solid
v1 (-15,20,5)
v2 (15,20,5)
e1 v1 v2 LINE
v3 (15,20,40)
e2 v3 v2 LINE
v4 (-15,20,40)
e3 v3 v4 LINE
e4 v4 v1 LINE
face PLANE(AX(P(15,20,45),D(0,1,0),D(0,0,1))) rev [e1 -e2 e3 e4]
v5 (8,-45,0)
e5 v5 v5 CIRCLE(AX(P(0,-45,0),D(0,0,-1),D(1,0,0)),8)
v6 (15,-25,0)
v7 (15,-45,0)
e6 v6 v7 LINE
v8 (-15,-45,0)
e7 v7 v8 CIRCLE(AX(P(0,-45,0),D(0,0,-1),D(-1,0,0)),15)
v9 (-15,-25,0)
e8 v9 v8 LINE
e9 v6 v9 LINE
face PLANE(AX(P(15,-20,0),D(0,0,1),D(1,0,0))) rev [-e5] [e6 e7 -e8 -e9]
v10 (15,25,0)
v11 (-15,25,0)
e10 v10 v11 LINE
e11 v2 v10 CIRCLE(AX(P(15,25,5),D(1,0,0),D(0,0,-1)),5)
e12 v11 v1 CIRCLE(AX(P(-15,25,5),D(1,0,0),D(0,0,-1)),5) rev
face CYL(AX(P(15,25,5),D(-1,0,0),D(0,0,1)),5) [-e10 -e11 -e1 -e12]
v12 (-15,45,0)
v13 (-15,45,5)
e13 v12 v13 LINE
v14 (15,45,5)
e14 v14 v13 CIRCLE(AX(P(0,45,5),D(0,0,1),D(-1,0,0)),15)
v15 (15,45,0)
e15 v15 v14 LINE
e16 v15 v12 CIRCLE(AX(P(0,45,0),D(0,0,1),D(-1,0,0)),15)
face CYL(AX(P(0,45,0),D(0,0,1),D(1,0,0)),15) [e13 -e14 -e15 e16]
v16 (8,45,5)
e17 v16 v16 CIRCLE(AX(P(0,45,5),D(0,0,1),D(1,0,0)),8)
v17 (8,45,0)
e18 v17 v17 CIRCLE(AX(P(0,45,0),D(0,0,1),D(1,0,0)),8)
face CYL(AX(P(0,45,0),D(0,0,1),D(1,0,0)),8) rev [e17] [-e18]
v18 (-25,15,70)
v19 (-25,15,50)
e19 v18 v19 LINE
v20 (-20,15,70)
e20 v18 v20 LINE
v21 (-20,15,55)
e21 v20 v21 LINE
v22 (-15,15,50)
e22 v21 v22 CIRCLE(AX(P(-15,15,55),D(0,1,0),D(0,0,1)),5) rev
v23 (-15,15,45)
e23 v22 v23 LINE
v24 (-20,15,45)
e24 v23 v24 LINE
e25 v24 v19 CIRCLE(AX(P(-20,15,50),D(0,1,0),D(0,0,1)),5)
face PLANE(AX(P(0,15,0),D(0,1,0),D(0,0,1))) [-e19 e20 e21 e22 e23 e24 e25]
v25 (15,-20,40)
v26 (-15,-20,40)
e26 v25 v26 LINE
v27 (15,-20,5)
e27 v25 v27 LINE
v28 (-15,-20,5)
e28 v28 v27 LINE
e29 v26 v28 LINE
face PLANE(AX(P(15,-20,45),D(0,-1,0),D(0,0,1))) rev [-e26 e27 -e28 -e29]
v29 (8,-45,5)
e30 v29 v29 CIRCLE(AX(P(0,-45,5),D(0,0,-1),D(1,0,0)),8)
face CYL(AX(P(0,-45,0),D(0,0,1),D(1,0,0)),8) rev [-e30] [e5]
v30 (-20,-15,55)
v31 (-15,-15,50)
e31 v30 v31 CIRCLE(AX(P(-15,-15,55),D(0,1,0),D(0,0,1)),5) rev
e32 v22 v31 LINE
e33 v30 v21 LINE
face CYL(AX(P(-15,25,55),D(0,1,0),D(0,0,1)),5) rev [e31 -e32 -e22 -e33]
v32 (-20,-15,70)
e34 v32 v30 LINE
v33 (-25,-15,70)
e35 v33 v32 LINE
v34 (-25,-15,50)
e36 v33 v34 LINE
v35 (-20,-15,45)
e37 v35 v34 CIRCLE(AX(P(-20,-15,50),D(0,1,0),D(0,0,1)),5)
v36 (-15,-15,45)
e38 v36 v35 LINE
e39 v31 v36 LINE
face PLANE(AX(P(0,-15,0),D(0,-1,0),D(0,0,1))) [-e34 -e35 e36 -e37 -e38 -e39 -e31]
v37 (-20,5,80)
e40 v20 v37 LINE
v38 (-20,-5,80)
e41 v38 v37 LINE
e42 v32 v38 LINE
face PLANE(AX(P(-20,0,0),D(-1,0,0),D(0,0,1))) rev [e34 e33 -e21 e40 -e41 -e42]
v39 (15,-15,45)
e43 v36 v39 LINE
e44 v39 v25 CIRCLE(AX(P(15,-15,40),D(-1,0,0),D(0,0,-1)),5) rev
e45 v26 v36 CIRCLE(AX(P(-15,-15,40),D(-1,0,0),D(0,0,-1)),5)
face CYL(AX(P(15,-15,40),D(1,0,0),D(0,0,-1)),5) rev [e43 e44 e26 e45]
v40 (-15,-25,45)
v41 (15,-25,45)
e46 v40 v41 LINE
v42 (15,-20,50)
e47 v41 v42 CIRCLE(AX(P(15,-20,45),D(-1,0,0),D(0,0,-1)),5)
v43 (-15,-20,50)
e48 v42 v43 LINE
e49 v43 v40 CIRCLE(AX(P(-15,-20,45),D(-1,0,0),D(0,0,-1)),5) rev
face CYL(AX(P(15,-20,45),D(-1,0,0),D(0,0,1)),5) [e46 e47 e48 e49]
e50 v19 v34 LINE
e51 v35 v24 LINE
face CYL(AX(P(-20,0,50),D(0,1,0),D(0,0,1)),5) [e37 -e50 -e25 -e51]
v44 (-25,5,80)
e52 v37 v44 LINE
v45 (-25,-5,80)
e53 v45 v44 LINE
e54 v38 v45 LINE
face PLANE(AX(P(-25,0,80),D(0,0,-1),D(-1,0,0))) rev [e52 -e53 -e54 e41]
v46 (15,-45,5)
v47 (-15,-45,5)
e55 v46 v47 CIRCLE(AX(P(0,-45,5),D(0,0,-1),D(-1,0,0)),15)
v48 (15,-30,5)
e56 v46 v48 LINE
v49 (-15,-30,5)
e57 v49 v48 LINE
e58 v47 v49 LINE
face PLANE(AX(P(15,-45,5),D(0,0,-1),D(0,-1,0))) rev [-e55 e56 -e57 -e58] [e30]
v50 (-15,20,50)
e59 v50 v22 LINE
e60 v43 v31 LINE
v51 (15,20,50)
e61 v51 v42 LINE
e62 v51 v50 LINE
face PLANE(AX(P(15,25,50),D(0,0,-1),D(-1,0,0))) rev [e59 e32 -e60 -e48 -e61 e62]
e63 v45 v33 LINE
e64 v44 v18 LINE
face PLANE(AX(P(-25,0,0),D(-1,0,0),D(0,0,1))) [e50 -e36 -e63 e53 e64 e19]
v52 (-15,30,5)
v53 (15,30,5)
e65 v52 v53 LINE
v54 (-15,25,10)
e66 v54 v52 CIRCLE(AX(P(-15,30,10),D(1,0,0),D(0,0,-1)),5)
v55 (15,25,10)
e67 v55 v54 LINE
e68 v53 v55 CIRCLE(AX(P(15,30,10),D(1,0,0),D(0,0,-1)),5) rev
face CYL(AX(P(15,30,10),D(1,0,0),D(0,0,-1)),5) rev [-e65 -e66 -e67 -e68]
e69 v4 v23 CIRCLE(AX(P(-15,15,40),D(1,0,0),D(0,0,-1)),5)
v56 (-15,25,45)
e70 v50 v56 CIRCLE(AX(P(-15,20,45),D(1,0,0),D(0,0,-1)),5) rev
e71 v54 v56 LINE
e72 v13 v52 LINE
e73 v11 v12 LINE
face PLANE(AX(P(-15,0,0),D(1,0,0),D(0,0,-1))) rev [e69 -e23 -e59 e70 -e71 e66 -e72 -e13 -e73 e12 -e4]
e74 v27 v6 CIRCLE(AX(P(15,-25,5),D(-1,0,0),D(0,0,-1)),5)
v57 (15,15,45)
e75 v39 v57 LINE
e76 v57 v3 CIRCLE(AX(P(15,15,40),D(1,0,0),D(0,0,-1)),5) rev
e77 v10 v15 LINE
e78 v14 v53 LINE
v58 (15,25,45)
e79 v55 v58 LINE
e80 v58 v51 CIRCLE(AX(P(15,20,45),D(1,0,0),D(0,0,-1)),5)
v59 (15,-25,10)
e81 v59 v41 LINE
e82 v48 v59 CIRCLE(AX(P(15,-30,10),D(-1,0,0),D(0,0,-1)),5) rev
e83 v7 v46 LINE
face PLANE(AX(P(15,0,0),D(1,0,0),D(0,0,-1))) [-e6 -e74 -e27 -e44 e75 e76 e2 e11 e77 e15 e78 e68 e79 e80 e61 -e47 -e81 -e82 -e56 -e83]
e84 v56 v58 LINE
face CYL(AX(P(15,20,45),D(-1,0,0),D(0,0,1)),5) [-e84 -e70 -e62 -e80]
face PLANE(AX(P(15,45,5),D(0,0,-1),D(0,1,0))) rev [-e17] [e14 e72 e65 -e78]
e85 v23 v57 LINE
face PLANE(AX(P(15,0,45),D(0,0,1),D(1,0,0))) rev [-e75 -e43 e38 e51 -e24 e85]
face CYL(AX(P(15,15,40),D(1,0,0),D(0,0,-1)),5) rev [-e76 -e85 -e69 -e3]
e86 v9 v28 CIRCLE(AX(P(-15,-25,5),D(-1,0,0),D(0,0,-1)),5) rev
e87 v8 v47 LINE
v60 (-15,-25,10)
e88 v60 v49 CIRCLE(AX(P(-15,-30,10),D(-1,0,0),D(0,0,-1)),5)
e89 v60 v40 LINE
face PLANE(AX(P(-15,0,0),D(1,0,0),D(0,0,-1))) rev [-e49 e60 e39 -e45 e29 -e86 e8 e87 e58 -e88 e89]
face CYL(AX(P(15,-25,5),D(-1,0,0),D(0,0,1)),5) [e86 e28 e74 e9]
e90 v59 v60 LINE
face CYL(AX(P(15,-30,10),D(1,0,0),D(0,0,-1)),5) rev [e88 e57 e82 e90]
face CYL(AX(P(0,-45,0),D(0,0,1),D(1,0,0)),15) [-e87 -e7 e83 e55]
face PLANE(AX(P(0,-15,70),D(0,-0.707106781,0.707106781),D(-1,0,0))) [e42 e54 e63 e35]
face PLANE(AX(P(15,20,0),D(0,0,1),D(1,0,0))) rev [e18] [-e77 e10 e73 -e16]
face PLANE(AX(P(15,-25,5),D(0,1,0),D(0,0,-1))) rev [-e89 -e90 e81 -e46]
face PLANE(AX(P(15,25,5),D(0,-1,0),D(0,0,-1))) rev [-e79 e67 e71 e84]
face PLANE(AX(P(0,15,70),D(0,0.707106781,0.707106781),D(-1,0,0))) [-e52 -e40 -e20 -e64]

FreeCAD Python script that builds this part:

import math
import FreeCAD as App
import Part
import Sketcher
from FreeCAD import Vector
Q = App.Units.Quantity


def edges_at(feature, points):
    """Names of the edges that pass closest to the given points."""
    edges = feature.Shape.Edges
    near = lambda p: min(range(len(edges)), key=lambda i: edges[i].distToShape(Part.Vertex(*p))[0])
    return sorted({f"Edge{near(p) + 1}" for p in points})

doc = App.newDocument("Part")
body = doc.addObject("PartDesign::Body", "Body")

# Sketch on YZ plane
sketch1 = doc.addObject("Sketcher::SketchObject", "Sketch")
body.addObject(sketch1)
sketch1.AttachmentSupport = (doc.YZ_Plane, [""])
sketch1.MapMode = "FlatFace"
sketch1.addGeometry(Part.LineSegment(Vector(45, 0, 0), Vector(45, 5, 0)), False)
sketch1.addGeometry(Part.LineSegment(Vector(45, 5, 0), Vector(25, 5, 0)), False)
sketch1.addGeometry(Part.LineSegment(Vector(25, 5, 0), Vector(25, 50, 0)), False)
sketch1.addGeometry(Part.LineSegment(Vector(25, 50, 0), Vector(0, 50, 0)), False)
sketch1.addGeometry(Part.LineSegment(Vector(0, 50, 0), Vector(0, 45, 0)), False)
sketch1.addGeometry(Part.LineSegment(Vector(0, 45, 0), Vector(20, 45, 0)), False)
sketch1.addGeometry(Part.LineSegment(Vector(20, 45, 0), Vector(20, 0, 0)), False)
sketch1.addGeometry(Part.LineSegment(Vector(20, 0, 0), Vector(45, 0, 0)), False)
sketch1.addConstraint(Sketcher.Constraint("Coincident", 0, 2, 1, 1))
sketch1.addConstraint(Sketcher.Constraint("Coincident", 1, 2, 2, 1))
sketch1.addConstraint(Sketcher.Constraint("Coincident", 2, 2, 3, 1))
sketch1.addConstraint(Sketcher.Constraint("Coincident", 3, 2, 4, 1))
sketch1.addConstraint(Sketcher.Constraint("Coincident", 4, 2, 5, 1))
sketch1.addConstraint(Sketcher.Constraint("Coincident", 5, 2, 6, 1))
sketch1.addConstraint(Sketcher.Constraint("Coincident", 6, 2, 7, 1))
sketch1.addConstraint(Sketcher.Constraint("Coincident", 7, 2, 0, 1))
sketch1.addConstraint(Sketcher.Constraint("Vertical", 0))
sketch1.addConstraint(Sketcher.Constraint("Horizontal", 1))
sketch1.addConstraint(Sketcher.Constraint("Vertical", 2))
sketch1.addConstraint(Sketcher.Constraint("Horizontal", 3))
sketch1.addConstraint(Sketcher.Constraint("Vertical", 4))
sketch1.addConstraint(Sketcher.Constraint("Horizontal", 5))
sketch1.addConstraint(Sketcher.Constraint("Vertical", 6))
sketch1.addConstraint(Sketcher.Constraint("Horizontal", 7))
sketch1.addConstraint(Sketcher.Constraint("PointOnObject", 3, 2, -2))
sketch1.addConstraint(Sketcher.Constraint("PointOnObject", 6, 2, -1))
sketch1.addConstraint(Sketcher.Constraint("Equal", 1, 5))
sketch1.addConstraint(Sketcher.Constraint("Equal", 0, 4))
sketch1.addConstraint(Sketcher.Constraint("DistanceX", 1, 2, 1, 1, Q("20 mm")))
sketch1.addConstraint(Sketcher.Constraint("DistanceX", 3, 2, 3, 1, Q("25 mm")))
sketch1.addConstraint(Sketcher.Constraint("DistanceY", 0, 1, 0, 2, Q("5 mm")))
sketch1.addConstraint(Sketcher.Constraint("DistanceY", 2, 1, 2, 2, Q("45 mm")))
pad1 = doc.addObject("PartDesign::Pad", "Pad")
body.addObject(pad1)
pad1.Profile = sketch1
pad1.Length = 30
pad1.Midplane = True
doc.recompute()

fillet = doc.addObject("PartDesign::Fillet", "Fillet")
body.addObject(fillet)
fillet.Base = (pad1, edges_at(pad1, [(0, 25, 5)]))
fillet.Radius = 5
doc.recompute()

fillet2 = doc.addObject("PartDesign::Fillet", "Fillet001")
body.addObject(fillet2)
fillet2.Base = (fillet, edges_at(fillet, [(0, 20, 0), (0, 20, 45), (0, 25, 50)]))
fillet2.Radius = 5

# Sketch on XZ plane
sketch2 = doc.addObject("Sketcher::SketchObject", "Sketch001")
body.addObject(sketch2)
sketch2.AttachmentSupport = (doc.XZ_Plane, [""])
sketch2.MapMode = "FlatFace"
sketch2.addGeometry(Part.LineSegment(Vector(-15, 50, 0), Vector(-15, 45, 0)), False)
sketch2.addGeometry(Part.LineSegment(Vector(-15, 45, 0), Vector(-20, 45, 0)), False)
sketch2.addGeometry(Part.LineSegment(Vector(-20, 45, 0), Vector(-20, 50, 0)), False)
sketch2.addGeometry(Part.LineSegment(Vector(-20, 50, 0), Vector(-15, 50, 0)), False)
sketch2.addConstraint(Sketcher.Constraint("Coincident", 0, 2, 1, 1))
sketch2.addConstraint(Sketcher.Constraint("Coincident", 1, 2, 2, 1))
sketch2.addConstraint(Sketcher.Constraint("Coincident", 2, 2, 3, 1))
sketch2.addConstraint(Sketcher.Constraint("Coincident", 3, 2, 0, 1))
sketch2.addConstraint(Sketcher.Constraint("Vertical", 0))
sketch2.addConstraint(Sketcher.Constraint("Horizontal", 1))
sketch2.addConstraint(Sketcher.Constraint("Vertical", 2))
sketch2.addConstraint(Sketcher.Constraint("Horizontal", 3))
sketch2.addConstraint(Sketcher.Constraint("Equal", 3, 0))
sketch2.addConstraint(Sketcher.Constraint("DistanceX", 1, 2, 1, 1, Q("5 mm")))
sketch2.addConstraint(Sketcher.Constraint("DistanceX", 0, 2, -1, 1, Q("15 mm")))
sketch2.addConstraint(Sketcher.Constraint("DistanceY", -1, 1, 0, 2, Q("45 mm")))
pad2 = doc.addObject("PartDesign::Pad", "Pad001")
body.addObject(pad2)
pad2.Profile = sketch2
pad2.Length = 15
pad2.Reversed = True

# Sketch on YZ plane
sketch3 = doc.addObject("Sketcher::SketchObject", "Sketch002")
body.addObject(sketch3)
sketch3.AttachmentSupport = (doc.YZ_Plane, [""])
sketch3.MapMode = "FlatFace"
sketch3.AttachmentOffset = App.Placement(Vector(0, 0, -20), App.Rotation())
sketch3.addGeometry(Part.LineSegment(Vector(15, 80, 0), Vector(15, 45, 0)), False)
sketch3.addGeometry(Part.LineSegment(Vector(15, 45, 0), Vector(0, 45, 0)), False)
sketch3.addGeometry(Part.LineSegment(Vector(0, 45, 0), Vector(0, 80, 0)), False)
sketch3.addGeometry(Part.LineSegment(Vector(0, 80, 0), Vector(15, 80, 0)), False)
sketch3.addConstraint(Sketcher.Constraint("Coincident", 0, 2, 1, 1))
sketch3.addConstraint(Sketcher.Constraint("Coincident", 1, 2, 2, 1))
sketch3.addConstraint(Sketcher.Constraint("Coincident", 2, 2, 3, 1))
sketch3.addConstraint(Sketcher.Constraint("Coincident", 3, 2, 0, 1))
sketch3.addConstraint(Sketcher.Constraint("Vertical", 0))
sketch3.addConstraint(Sketcher.Constraint("Horizontal", 1))
sketch3.addConstraint(Sketcher.Constraint("Vertical", 2))
sketch3.addConstraint(Sketcher.Constraint("Horizontal", 3))
sketch3.addConstraint(Sketcher.Constraint("PointOnObject", 1, 2, -2))
sketch3.addConstraint(Sketcher.Constraint("DistanceX", 1, 2, 1, 1, Q("15 mm")))
sketch3.addConstraint(Sketcher.Constraint("DistanceY", 0, 2, 0, 1, Q("35 mm")))
sketch3.addConstraint(Sketcher.Constraint("DistanceY", -1, 1, 0, 2, Q("45 mm")))
pad3 = doc.addObject("PartDesign::Pad", "Pad002")
body.addObject(pad3)
pad3.Profile = sketch3
pad3.Length = 5
pad3.Reversed = True
doc.recompute()

fillet3 = doc.addObject("PartDesign::Fillet", "Fillet002")
body.addObject(fillet3)
fillet3.Base = (pad3, edges_at(pad3, [(-25, 7.5, 45), (-20, 7.5, 50)]))
fillet3.Radius = 5
doc.recompute()

chamfer = doc.addObject("PartDesign::Chamfer", "Chamfer")
body.addObject(chamfer)
chamfer.Base = (fillet3, edges_at(fillet3, [(-22.5, 15, 80)]))
chamfer.Size = 10

# Sketch on XY plane
sketch4 = doc.addObject("Sketcher::SketchObject", "Sketch003")
body.addObject(sketch4)
sketch4.AttachmentSupport = (doc.XY_Plane, [""])
sketch4.MapMode = "FlatFace"
sketch4.AttachmentOffset = App.Placement(Vector(0, 0, 5), App.Rotation())
sketch4.addGeometry(Part.LineSegment(Vector(-15, 45, 0), Vector(15, 45, 0)), False)
sketch4.addGeometry(Part.ArcOfCircle(Part.Circle(Vector(0, 45, 0), Vector(0, 0, 1), 15), math.radians(0), math.radians(180)), False)
sketch4.addConstraint(Sketcher.Constraint("Coincident", 0, 1, 1, 2))
sketch4.addConstraint(Sketcher.Constraint("Coincident", 1, 1, 0, 2))
sketch4.addConstraint(Sketcher.Constraint("Horizontal", 0))
sketch4.addConstraint(Sketcher.Constraint("PointOnObject", 1, 3, -2))
sketch4.addConstraint(Sketcher.Constraint("Horizontal", 1, 3, 0, 1))
sketch4.addConstraint(Sketcher.Constraint("Radius", 1, Q("15 mm")))
sketch4.addConstraint(Sketcher.Constraint("DistanceY", -1, 1, 1, 3, Q("45 mm")))
pad4 = doc.addObject("PartDesign::Pad", "Pad003")
body.addObject(pad4)
pad4.Profile = sketch4
pad4.Length = 5
pad4.Reversed = True

# Sketch on XY plane
sketch5 = doc.addObject("Sketcher::SketchObject", "Sketch004")
body.addObject(sketch5)
sketch5.AttachmentSupport = (doc.XY_Plane, [""])
sketch5.MapMode = "FlatFace"
sketch5.AttachmentOffset = App.Placement(Vector(0, 0, 5), App.Rotation())
sketch5.addGeometry(Part.Circle(Vector(0, 45, 0), Vector(0, 0, 1), 8), False)
sketch5.addConstraint(Sketcher.Constraint("PointOnObject", 0, 3, -2))
sketch5.addConstraint(Sketcher.Constraint("Diameter", 0, Q("16 mm")))
sketch5.addConstraint(Sketcher.Constraint("DistanceY", -1, 1, 0, 3, Q("45 mm")))
pocket1 = doc.addObject("PartDesign::Pocket", "Pocket")
body.addObject(pocket1)
pocket1.Profile = sketch5
pocket1.Length = 5
body2 = doc.addObject("PartDesign::Body", "Body001")
doc.recompute()

body2.BaseFeature = body
doc.recompute()

mirroring = doc.addObject("Part::Mirroring", "Mirroring")
mirroring.Source = body
mirroring.Base = Vector(15, 0, 50)
mirroring.Normal = Vector(0, 1, 0)
body3 = doc.addObject("PartDesign::Body", "Body002")
body3.BaseFeature = mirroring
boolean = doc.addObject("PartDesign::Boolean", "Boolean")
body2.addObject(boolean)
boolean.Type = "Fuse"
boolean.addObjects([body3])
doc.recompute()
mirroring.Visibility = False

doc.recompute()
